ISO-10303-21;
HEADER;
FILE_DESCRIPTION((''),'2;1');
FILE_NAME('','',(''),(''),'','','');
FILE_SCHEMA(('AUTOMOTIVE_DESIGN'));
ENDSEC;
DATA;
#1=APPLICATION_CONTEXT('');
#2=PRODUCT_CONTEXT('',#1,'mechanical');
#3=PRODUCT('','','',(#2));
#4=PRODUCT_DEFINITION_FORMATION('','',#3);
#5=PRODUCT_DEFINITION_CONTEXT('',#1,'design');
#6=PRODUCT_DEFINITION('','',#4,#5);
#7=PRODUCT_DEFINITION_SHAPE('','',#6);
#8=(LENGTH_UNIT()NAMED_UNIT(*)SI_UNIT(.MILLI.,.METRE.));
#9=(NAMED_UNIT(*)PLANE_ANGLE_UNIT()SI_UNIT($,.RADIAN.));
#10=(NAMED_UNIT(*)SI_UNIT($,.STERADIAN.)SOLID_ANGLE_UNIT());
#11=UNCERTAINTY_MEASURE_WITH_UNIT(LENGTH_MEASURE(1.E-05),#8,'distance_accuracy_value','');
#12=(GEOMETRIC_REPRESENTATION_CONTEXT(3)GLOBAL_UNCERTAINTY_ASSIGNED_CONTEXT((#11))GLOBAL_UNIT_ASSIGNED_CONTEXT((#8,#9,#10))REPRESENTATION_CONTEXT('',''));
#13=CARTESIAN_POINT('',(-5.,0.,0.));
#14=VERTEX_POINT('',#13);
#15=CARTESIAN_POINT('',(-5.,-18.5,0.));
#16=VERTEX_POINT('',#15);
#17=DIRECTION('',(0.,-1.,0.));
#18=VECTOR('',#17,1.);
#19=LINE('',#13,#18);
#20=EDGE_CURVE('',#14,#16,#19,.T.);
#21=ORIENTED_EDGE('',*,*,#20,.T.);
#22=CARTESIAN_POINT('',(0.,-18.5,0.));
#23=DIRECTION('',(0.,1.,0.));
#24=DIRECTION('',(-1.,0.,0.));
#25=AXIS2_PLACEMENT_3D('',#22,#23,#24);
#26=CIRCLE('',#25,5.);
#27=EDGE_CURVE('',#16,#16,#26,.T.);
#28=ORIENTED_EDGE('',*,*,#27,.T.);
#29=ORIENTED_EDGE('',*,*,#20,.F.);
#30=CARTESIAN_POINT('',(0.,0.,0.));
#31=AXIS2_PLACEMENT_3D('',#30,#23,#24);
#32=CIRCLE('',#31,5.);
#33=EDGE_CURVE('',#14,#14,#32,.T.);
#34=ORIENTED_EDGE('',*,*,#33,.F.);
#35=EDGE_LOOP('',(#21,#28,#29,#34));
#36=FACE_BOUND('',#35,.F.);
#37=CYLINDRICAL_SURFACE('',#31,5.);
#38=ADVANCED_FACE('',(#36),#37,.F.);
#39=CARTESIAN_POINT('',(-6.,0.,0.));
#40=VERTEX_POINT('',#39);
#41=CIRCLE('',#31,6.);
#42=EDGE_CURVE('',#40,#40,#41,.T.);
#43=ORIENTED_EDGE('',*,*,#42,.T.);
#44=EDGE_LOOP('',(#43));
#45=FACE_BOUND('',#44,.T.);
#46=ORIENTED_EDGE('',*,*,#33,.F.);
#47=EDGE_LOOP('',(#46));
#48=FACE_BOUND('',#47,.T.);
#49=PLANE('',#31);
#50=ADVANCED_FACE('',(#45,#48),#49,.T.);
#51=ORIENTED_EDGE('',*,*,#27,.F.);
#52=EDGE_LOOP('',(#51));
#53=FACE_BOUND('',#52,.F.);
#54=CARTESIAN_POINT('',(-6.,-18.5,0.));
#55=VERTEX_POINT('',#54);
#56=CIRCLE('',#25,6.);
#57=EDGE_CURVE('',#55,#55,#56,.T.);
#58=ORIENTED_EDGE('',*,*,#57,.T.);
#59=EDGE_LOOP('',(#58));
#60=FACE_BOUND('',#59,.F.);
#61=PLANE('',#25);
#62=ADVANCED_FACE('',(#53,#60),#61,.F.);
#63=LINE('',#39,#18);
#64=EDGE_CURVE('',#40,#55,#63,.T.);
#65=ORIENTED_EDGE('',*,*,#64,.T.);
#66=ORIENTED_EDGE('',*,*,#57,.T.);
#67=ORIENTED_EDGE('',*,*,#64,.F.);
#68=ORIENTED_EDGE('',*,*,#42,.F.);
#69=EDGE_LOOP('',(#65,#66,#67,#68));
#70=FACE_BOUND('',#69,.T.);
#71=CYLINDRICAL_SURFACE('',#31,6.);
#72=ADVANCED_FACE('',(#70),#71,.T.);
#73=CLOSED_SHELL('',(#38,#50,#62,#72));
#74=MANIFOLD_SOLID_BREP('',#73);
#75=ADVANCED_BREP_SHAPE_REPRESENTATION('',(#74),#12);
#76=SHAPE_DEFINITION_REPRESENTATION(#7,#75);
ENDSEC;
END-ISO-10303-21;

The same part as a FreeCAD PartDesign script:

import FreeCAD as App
import Part
import Sketcher

V = App.Vector
Q = App.Units.Quantity

doc = App.newDocument("Part")
params = doc.addObject("Spreadsheet::Sheet", "Params")
for row, (alias, value) in enumerate([
    ("sketch1_diameter", "12 mm"),
    ("sketch1_diameter2", "10 mm"),
    ("pad1_length", "18.5 mm"),
], start=1):
    params.set(f"A{row}", alias)
    params.set(f"B{row}", "=" + value)
    params.setAlias(f"B{row}", alias)

body = doc.addObject("PartDesign::Body", "Body")

sketch1 = doc.addObject("Sketcher::SketchObject", "Sketch")
body.addObject(sketch1)
sketch1.AttachmentSupport = (doc.XZ_Plane, [""])
sketch1.MapMode = "FlatFace"
sketch1.addGeometry(Part.Circle(V(0, 0, 0), V(0, 0, 1), 6), False)
sketch1.addGeometry(Part.Circle(V(0, 0, 0), V(0, 0, 1), 5), False)
sketch1.addConstraint(Sketcher.Constraint("Coincident", 0, 3, -1, 1))
sketch1.addConstraint(Sketcher.Constraint("Coincident", 1, 3, -1, 1))
sketch1.addConstraint(Sketcher.Constraint("Diameter", 0, Q("12 mm")))
sketch1.addConstraint(Sketcher.Constraint("Diameter", 1, Q("10 mm")))
sketch1.setExpression("Constraints[2]", "Params.sketch1_diameter")
sketch1.setExpression("Constraints[3]", "Params.sketch1_diameter2")
pad1 = doc.addObject("PartDesign::Pad", "Pad")
body.addObject(pad1)
pad1.Profile = sketch1
pad1.setExpression("Length", "Params.pad1_length")

doc.recompute()
